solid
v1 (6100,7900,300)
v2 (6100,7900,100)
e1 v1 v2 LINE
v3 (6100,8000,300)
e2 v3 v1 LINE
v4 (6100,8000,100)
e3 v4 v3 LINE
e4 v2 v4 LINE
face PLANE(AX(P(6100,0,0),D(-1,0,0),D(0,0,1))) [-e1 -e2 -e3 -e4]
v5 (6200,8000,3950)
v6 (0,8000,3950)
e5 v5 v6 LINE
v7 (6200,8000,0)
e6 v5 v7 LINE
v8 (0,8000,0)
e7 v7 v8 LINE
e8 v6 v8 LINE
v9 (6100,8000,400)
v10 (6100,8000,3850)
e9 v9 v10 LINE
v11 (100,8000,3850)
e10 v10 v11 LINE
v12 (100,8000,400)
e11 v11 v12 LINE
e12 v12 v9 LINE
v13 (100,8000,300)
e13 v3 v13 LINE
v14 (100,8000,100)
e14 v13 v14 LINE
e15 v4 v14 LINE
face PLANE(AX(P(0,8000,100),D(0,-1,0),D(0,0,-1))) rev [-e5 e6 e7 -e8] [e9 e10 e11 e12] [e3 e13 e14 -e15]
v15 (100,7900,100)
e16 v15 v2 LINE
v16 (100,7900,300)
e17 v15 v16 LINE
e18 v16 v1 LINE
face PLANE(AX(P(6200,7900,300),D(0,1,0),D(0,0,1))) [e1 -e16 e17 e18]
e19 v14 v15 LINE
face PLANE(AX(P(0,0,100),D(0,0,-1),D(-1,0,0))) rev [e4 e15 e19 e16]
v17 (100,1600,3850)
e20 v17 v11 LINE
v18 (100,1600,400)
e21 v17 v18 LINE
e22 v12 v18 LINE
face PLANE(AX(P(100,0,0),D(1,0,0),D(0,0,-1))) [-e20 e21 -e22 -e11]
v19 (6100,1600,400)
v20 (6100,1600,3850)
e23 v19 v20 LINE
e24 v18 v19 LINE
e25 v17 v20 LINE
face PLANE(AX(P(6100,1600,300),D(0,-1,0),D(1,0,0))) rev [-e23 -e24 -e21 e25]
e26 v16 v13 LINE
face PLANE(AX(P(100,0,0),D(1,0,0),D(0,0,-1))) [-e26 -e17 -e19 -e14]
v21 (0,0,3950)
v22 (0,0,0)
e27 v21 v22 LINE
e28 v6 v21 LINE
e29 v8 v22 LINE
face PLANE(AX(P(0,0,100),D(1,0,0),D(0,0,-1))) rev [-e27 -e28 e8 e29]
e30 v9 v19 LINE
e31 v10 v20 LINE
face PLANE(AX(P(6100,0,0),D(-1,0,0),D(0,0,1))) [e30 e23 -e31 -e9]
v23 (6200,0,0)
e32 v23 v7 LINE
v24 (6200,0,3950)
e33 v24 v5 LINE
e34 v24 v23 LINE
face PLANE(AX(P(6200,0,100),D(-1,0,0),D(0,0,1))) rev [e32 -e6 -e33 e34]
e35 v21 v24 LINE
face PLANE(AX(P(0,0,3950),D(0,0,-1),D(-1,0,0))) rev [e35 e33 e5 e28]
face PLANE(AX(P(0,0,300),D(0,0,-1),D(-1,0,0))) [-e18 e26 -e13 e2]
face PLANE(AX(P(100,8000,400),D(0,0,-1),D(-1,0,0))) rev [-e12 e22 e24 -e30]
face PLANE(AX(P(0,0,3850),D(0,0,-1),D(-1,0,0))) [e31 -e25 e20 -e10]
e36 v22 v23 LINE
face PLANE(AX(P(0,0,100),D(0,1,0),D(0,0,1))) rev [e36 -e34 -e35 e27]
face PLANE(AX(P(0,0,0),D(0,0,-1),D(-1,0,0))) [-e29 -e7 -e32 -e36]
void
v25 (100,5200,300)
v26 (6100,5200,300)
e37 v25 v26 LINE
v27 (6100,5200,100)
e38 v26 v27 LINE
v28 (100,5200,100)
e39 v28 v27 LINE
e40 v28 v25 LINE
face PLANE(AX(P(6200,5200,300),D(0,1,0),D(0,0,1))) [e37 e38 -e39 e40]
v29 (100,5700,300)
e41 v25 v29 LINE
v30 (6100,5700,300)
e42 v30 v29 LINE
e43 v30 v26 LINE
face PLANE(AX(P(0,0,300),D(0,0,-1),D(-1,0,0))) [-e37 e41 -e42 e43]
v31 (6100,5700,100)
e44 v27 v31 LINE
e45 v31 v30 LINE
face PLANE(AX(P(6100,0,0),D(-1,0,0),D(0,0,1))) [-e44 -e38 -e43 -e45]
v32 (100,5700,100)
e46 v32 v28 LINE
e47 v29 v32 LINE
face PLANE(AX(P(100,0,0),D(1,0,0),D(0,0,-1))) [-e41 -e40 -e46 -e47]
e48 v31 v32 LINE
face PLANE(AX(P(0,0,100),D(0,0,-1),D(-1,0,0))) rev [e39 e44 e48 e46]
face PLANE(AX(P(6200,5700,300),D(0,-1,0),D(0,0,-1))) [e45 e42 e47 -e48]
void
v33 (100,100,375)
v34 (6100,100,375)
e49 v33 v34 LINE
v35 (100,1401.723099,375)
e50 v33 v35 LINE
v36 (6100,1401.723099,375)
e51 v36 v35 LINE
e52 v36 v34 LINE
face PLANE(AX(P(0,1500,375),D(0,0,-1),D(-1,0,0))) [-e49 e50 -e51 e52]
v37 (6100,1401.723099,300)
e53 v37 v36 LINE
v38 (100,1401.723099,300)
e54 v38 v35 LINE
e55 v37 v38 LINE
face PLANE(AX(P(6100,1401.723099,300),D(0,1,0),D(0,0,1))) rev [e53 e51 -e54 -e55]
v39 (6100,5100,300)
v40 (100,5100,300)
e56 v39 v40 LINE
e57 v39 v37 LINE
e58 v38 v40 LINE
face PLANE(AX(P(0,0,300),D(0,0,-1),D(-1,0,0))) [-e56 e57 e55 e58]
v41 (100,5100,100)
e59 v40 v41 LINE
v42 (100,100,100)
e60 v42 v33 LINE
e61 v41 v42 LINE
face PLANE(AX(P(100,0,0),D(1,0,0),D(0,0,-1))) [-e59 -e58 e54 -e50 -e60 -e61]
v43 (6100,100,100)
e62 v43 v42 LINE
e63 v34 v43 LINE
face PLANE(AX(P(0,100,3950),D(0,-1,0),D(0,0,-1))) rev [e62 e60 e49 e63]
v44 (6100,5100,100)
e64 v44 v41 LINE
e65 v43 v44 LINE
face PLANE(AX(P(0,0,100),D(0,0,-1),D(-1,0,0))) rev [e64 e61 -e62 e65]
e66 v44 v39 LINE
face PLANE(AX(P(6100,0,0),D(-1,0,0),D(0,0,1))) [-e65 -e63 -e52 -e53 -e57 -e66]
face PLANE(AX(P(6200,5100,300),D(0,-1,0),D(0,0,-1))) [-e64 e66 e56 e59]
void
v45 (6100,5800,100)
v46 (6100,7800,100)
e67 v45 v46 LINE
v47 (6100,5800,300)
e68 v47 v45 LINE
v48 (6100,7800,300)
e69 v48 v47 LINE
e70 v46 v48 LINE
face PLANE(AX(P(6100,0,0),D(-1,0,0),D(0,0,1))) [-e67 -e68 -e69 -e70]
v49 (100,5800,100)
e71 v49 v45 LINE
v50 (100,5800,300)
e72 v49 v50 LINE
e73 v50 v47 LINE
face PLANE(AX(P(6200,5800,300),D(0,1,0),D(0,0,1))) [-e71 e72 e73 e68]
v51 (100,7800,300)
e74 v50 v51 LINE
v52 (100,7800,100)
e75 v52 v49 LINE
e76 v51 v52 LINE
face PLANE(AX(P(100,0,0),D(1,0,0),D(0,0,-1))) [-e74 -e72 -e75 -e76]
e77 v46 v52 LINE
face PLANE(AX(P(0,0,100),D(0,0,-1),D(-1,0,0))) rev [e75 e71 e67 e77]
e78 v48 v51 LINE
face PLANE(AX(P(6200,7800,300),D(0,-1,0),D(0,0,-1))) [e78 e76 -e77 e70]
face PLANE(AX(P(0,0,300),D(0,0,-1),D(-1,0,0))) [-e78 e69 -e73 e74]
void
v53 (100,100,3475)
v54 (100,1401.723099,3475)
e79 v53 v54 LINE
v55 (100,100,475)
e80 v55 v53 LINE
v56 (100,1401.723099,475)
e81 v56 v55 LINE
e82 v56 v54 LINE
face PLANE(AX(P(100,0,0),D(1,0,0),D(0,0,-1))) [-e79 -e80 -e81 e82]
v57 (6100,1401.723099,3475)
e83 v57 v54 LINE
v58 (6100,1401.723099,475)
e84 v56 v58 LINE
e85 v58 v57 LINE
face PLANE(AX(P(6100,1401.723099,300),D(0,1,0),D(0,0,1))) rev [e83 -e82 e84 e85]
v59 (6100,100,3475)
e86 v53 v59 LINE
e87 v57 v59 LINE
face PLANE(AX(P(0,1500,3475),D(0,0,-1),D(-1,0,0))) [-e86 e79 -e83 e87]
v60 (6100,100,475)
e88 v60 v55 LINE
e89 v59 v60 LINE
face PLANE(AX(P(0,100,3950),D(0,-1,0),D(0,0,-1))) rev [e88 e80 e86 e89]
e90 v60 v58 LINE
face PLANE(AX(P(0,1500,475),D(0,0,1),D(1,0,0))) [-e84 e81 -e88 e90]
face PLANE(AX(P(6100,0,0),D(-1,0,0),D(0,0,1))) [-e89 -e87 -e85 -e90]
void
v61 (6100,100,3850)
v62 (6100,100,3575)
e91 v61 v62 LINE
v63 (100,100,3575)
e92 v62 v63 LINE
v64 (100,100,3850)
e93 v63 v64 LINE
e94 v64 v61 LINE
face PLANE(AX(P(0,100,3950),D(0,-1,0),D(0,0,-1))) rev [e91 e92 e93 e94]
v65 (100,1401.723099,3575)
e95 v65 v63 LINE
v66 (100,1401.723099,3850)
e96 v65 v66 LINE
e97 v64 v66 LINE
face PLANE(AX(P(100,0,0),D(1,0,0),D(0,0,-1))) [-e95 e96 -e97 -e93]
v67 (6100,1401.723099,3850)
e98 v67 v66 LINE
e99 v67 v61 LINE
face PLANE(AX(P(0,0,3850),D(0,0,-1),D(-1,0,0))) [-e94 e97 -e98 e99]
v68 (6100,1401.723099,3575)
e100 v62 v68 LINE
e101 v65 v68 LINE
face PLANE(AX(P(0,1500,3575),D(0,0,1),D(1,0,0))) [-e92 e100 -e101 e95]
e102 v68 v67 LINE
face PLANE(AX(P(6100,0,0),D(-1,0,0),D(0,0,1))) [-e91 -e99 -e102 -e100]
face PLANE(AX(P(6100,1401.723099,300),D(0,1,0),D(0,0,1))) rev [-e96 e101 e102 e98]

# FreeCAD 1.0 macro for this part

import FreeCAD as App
import Part
import Sketcher

V = App.Vector
Q = App.Units.Quantity


def add_polygon(sketch, points):
    """Adds a closed chain of lines whose ends are joined by coincident constraints."""
    first, n = sketch.GeometryCount, len(points)
    for a, b in zip(points, points[1:] + points[:1]):
        sketch.addGeometry(Part.LineSegment(App.Vector(*a, 0), App.Vector(*b, 0)), False)
    for i in range(n):
        sketch.addConstraint(Sketcher.Constraint("Coincident", first + i, 2, first + (i + 1) % n, 1))

doc = App.newDocument("Part")
body = doc.addObject("PartDesign::Body", "Body")

# Sketch on XY plane
sketch1 = body.newObject("Sketcher::SketchObject", "Sketch")
sketch1.AttachmentSupport = (doc.getObject("XY_Plane"), [""])
sketch1.MapMode = "FlatFace"
add_polygon(sketch1, [(0, 8000), (0, 0), (6200, 0), (6200, 8000)])  # lines 0-3
sketch1.addConstraint([
    Sketcher.Constraint("Vertical", 0),
    Sketcher.Constraint("Horizontal", 1),
    Sketcher.Constraint("Vertical", 2),
    Sketcher.Constraint("Horizontal", 3),
    Sketcher.Constraint("Coincident", 0, 2, -1, 1),
    Sketcher.Constraint("DistanceX", 1, 1, 1, 2, Q("6200 mm")),
    Sketcher.Constraint("DistanceY", 0, 2, 0, 1, Q("8000 mm")),
])
pad1 = body.newObject("PartDesign::Pad", "Pad")
pad1.Profile = sketch1
pad1.Length = 100

# Sketch on XY plane
sketch2 = body.newObject("Sketcher::SketchObject", "Sketch001")
sketch2.AttachmentSupport = (doc.getObject("XY_Plane"), [""])
sketch2.MapMode = "FlatFace"
sketch2.AttachmentOffset = App.Placement(V(0, 0, 100), App.Rotation())
add_polygon(sketch2, [(0, 100), (0, 0), (6200, 0), (6200, 100)])  # lines 0-3
sketch2.addConstraint([
    Sketcher.Constraint("Vertical", 0),
    Sketcher.Constraint("Horizontal", 1),
    Sketcher.Constraint("Vertical", 2),
    Sketcher.Constraint("Horizontal", 3),
    Sketcher.Constraint("Coincident", 0, 2, -1, 1),
    Sketcher.Constraint("DistanceX", 1, 1, 1, 2, Q("6200 mm")),
    Sketcher.Constraint("DistanceY", 0, 2, 0, 1, Q("100 mm")),
])
pad2 = body.newObject("PartDesign::Pad", "Pad001")
pad2.Profile = sketch2
pad2.Length = 3850

# Sketch on XY plane
sketch3 = body.newObject("Sketcher::SketchObject", "Sketch002")
sketch3.AttachmentSupport = (doc.getObject("XY_Plane"), [""])
sketch3.MapMode = "FlatFace"
sketch3.AttachmentOffset = App.Placement(V(0, 0, 3950), App.Rotation())
add_polygon(sketch3, [(0, 8000), (0, 0), (6200, 0), (6200, 8000)])  # lines 0-3
sketch3.addConstraint([
    Sketcher.Constraint("Vertical", 0),
    Sketcher.Constraint("Horizontal", 1),
    Sketcher.Constraint("Vertical", 2),
    Sketcher.Constraint("Horizontal", 3),
    Sketcher.Constraint("Coincident", 0, 2, -1, 1),
    Sketcher.Constraint("DistanceX", 1, 1, 1, 2, Q("6200 mm")),
    Sketcher.Constraint("DistanceY", 0, 2, 0, 1, Q("8000 mm")),
])
pad3 = body.newObject("PartDesign::Pad", "Pad002")
pad3.Profile = sketch3
pad3.Length = 100
pad3.Reversed = True

# Sketch on YZ plane
sketch4 = body.newObject("Sketcher::SketchObject", "Sketch003")
sketch4.AttachmentSupport = (doc.getObject("YZ_Plane"), [""])
sketch4.MapMode = "FlatFace"
sketch4.AttachmentOffset = App.Placement(V(0, 0, 6200), App.Rotation())
add_polygon(sketch4, [(8000, 3850), (100, 3850), (100, 100), (8000, 100)])  # lines 0-3
sketch4.addConstraint([
    Sketcher.Constraint("Horizontal", 0),
    Sketcher.Constraint("Vertical", 1),
    Sketcher.Constraint("Horizontal", 2),
    Sketcher.Constraint("Vertical", 3),
    Sketcher.Constraint("DistanceX", 0, 2, 0, 1, Q("7900 mm")),
    Sketcher.Constraint("DistanceY", 1, 2, 1, 1, Q("3750 mm")),
    Sketcher.Constraint("DistanceX", -1, 1, 0, 2, Q("100 mm")),
    Sketcher.Constraint("DistanceY", -1, 1, 0, 2, Q("3850 mm")),
])
pad4 = body.newObject("PartDesign::Pad", "Pad003")
pad4.Profile = sketch4
pad4.Length = 100
pad4.Reversed = True

# Sketch on YZ plane
sketch5 = body.newObject("Sketcher::SketchObject", "Sketch004")
sketch5.AttachmentSupport = (doc.getObject("YZ_Plane"), [""])
sketch5.MapMode = "FlatFace"
add_polygon(sketch5, [(8000, 100), (100, 100), (100, 3850), (8000, 3850)])  # lines 0-3
sketch5.addConstraint([
    Sketcher.Constraint("Horizontal", 0),
    Sketcher.Constraint("Vertical", 1),
    Sketcher.Constraint("Horizontal", 2),
    Sketcher.Constraint("Vertical", 3),
    Sketcher.Constraint("DistanceX", 0, 2, 0, 1, Q("7900 mm")),
    Sketcher.Constraint("DistanceY", 1, 1, 1, 2, Q("3750 mm")),
    Sketcher.Constraint("DistanceX", -1, 1, 0, 2, Q("100 mm")),
    Sketcher.Constraint("DistanceY", -1, 1, 0, 2, Q("100 mm")),
])
pad5 = body.newObject("PartDesign::Pad", "Pad004")
pad5.Profile = sketch5
pad5.Length = 100

# Sketch on XY plane
sketch6 = body.newObject("Sketcher::SketchObject", "Sketch005")
sketch6.AttachmentSupport = (doc.getObject("XY_Plane"), [""])
sketch6.MapMode = "FlatFace"
sketch6.AttachmentOffset = App.Placement(V(0, 0, 3850), App.Rotation())
add_polygon(sketch6, [(6100, 1600), (6100, 1402), (0, 1402), (0, 1600)])  # lines 0-3
sketch6.addConstraint([
    Sketcher.Constraint("Vertical", 0),
    Sketcher.Constraint("Horizontal", 1),
    Sketcher.Constraint("Vertical", 2),
    Sketcher.Constraint("Horizontal", 3),
    Sketcher.Constraint("PointOnObject", 1, 2, -2),
    Sketcher.Constraint("DistanceX", 1, 2, 1, 1, Q("6100 mm")),
    Sketcher.Constraint("DistanceY", -1, 1, 2, 2, Q("1600 mm")),
    Sketcher.Constraint("DistanceY", 0, 2, 0, 1, Q("198.276901 mm")),
])
pad6 = body.newObject("PartDesign::Pad", "Pad005")
pad6.Profile = sketch6
pad6.Length = 3550
pad6.Reversed = True

# Sketch on XZ plane
sketch7 = body.newObject("Sketcher::SketchObject", "Sketch006")
sketch7.AttachmentSupport = (doc.getObject("XZ_Plane"), [""])
sketch7.MapMode = "FlatFace"
sketch7.AttachmentOffset = App.Placement(V(0, 0, -1600), App.Rotation())
add_polygon(sketch7, [(100, 300), (100, 400), (6100, 400), (6100, 300)])  # lines 0-3
sketch7.addConstraint([
    Sketcher.Constraint("Vertical", 0),
    Sketcher.Constraint("Horizontal", 1),
    Sketcher.Constraint("Vertical", 2),
    Sketcher.Constraint("Horizontal", 3),
    Sketcher.Constraint("DistanceX", 1, 1, 1, 2, Q("6000 mm")),
    Sketcher.Constraint("DistanceY", 0, 1, 0, 2, Q("100 mm")),
    Sketcher.Constraint("DistanceX", -1, 1, 0, 2, Q("100 mm")),
    Sketcher.Constraint("DistanceY", -1, 1, 0, 2, Q("400 mm")),
])
pad7 = body.newObject("PartDesign::Pad", "Pad006")
pad7.Profile = sketch7
pad7.Length = 6400
pad7.Reversed = True

# Sketch on XZ plane
sketch8 = body.newObject("Sketcher::SketchObject", "Sketch007")
sketch8.AttachmentSupport = (doc.getObject("XZ_Plane"), [""])
sketch8.MapMode = "FlatFace"
add_polygon(sketch8, [(0, 3575), (0, 3475), (6200, 3475), (6200, 3575)])  # lines 0-3
add_polygon(sketch8, [(0, 475), (0, 375), (6200, 375), (6200, 475)])  # lines 4-7
sketch8.addConstraint([
    Sketcher.Constraint("Vertical", 0),
    Sketcher.Constraint("Horizontal", 1),
    Sketcher.Constraint("Vertical", 2),
    Sketcher.Constraint("Horizontal", 3),
    Sketcher.Constraint("Vertical", 4),
    Sketcher.Constraint("Horizontal", 5),
    Sketcher.Constraint("Vertical", 6),
    Sketcher.Constraint("Horizontal", 7),
    Sketcher.Constraint("PointOnObject", 0, 2, -2),
    Sketcher.Constraint("PointOnObject", 4, 2, -2),
    Sketcher.Constraint("Vertical", 2, 2, 5, 2),
    Sketcher.Constraint("Equal", 2, 4),
    Sketcher.Constraint("DistanceX", 1, 1, 1, 2, Q("6200 mm")),
    Sketcher.Constraint("DistanceY", 0, 2, 0, 1, Q("100 mm")),
    Sketcher.Constraint("DistanceY", -1, 1, 0, 2, Q("3475 mm")),
    Sketcher.Constraint("DistanceY", -1, 1, 4, 2, Q("375 mm")),
])
pad8 = body.newObject("PartDesign::Pad", "Pad007")
pad8.Profile = sketch8
pad8.Length = 1500
pad8.Reversed = True

# Sketch on XY plane
sketch9 = body.newObject("Sketcher::SketchObject", "Sketch008")
sketch9.AttachmentSupport = (doc.getObject("XY_Plane"), [""])
sketch9.MapMode = "FlatFace"
add_polygon(sketch9, [(6200, 7900), (6200, 7800), (0, 7800), (0, 7900)])  # lines 0-3
add_polygon(sketch9, [(6200, 5800), (6200, 5700), (0, 5700), (0, 5800)])  # lines 4-7
add_polygon(sketch9, [(6200, 5200), (6200, 5100), (0, 5100), (0, 5200)])  # lines 8-11
sketch9.addConstraint([
    Sketcher.Constraint("Vertical", 0),
    Sketcher.Constraint("Horizontal", 1),
    Sketcher.Constraint("Vertical", 2),
    Sketcher.Constraint("Horizontal", 3),
    Sketcher.Constraint("Vertical", 4),
    Sketcher.Constraint("Horizontal", 5),
    Sketcher.Constraint("Vertical", 6),
    Sketcher.Constraint("Horizontal", 7),
    Sketcher.Constraint("Vertical", 8),
    Sketcher.Constraint("Horizontal", 9),
    Sketcher.Constraint("Vertical", 10),
    Sketcher.Constraint("Horizontal", 11),
    Sketcher.Constraint("PointOnObject", 1, 2, -2),
    Sketcher.Constraint("PointOnObject", 5, 2, -2),
    Sketcher.Constraint("PointOnObject", 9, 2, -2),
    Sketcher.Constraint("Vertical", 3, 2, 4, 2),
    Sketcher.Constraint("Vertical", 7, 2, 8, 2),
    Sketcher.Constraint("Equal", 2, 4),
    Sketcher.Constraint("Equal", 6, 8),
    Sketcher.Constraint("DistanceX", 1, 2, 1, 1, Q("6200 mm")),
    Sketcher.Constraint("DistanceY", 0, 2, 0, 1, Q("100 mm")),
    Sketcher.Constraint("DistanceY", -1, 1, 0, 2, Q("7800 mm")),
    Sketcher.Constraint("DistanceY", -1, 1, 4, 2, Q("5700 mm")),
    Sketcher.Constraint("DistanceY", -1, 1, 8, 2, Q("5100 mm")),
])
pad9 = body.newObject("PartDesign::Pad", "Pad008")
pad9.Profile = sketch9
pad9.Length = 300

doc.recompute()
